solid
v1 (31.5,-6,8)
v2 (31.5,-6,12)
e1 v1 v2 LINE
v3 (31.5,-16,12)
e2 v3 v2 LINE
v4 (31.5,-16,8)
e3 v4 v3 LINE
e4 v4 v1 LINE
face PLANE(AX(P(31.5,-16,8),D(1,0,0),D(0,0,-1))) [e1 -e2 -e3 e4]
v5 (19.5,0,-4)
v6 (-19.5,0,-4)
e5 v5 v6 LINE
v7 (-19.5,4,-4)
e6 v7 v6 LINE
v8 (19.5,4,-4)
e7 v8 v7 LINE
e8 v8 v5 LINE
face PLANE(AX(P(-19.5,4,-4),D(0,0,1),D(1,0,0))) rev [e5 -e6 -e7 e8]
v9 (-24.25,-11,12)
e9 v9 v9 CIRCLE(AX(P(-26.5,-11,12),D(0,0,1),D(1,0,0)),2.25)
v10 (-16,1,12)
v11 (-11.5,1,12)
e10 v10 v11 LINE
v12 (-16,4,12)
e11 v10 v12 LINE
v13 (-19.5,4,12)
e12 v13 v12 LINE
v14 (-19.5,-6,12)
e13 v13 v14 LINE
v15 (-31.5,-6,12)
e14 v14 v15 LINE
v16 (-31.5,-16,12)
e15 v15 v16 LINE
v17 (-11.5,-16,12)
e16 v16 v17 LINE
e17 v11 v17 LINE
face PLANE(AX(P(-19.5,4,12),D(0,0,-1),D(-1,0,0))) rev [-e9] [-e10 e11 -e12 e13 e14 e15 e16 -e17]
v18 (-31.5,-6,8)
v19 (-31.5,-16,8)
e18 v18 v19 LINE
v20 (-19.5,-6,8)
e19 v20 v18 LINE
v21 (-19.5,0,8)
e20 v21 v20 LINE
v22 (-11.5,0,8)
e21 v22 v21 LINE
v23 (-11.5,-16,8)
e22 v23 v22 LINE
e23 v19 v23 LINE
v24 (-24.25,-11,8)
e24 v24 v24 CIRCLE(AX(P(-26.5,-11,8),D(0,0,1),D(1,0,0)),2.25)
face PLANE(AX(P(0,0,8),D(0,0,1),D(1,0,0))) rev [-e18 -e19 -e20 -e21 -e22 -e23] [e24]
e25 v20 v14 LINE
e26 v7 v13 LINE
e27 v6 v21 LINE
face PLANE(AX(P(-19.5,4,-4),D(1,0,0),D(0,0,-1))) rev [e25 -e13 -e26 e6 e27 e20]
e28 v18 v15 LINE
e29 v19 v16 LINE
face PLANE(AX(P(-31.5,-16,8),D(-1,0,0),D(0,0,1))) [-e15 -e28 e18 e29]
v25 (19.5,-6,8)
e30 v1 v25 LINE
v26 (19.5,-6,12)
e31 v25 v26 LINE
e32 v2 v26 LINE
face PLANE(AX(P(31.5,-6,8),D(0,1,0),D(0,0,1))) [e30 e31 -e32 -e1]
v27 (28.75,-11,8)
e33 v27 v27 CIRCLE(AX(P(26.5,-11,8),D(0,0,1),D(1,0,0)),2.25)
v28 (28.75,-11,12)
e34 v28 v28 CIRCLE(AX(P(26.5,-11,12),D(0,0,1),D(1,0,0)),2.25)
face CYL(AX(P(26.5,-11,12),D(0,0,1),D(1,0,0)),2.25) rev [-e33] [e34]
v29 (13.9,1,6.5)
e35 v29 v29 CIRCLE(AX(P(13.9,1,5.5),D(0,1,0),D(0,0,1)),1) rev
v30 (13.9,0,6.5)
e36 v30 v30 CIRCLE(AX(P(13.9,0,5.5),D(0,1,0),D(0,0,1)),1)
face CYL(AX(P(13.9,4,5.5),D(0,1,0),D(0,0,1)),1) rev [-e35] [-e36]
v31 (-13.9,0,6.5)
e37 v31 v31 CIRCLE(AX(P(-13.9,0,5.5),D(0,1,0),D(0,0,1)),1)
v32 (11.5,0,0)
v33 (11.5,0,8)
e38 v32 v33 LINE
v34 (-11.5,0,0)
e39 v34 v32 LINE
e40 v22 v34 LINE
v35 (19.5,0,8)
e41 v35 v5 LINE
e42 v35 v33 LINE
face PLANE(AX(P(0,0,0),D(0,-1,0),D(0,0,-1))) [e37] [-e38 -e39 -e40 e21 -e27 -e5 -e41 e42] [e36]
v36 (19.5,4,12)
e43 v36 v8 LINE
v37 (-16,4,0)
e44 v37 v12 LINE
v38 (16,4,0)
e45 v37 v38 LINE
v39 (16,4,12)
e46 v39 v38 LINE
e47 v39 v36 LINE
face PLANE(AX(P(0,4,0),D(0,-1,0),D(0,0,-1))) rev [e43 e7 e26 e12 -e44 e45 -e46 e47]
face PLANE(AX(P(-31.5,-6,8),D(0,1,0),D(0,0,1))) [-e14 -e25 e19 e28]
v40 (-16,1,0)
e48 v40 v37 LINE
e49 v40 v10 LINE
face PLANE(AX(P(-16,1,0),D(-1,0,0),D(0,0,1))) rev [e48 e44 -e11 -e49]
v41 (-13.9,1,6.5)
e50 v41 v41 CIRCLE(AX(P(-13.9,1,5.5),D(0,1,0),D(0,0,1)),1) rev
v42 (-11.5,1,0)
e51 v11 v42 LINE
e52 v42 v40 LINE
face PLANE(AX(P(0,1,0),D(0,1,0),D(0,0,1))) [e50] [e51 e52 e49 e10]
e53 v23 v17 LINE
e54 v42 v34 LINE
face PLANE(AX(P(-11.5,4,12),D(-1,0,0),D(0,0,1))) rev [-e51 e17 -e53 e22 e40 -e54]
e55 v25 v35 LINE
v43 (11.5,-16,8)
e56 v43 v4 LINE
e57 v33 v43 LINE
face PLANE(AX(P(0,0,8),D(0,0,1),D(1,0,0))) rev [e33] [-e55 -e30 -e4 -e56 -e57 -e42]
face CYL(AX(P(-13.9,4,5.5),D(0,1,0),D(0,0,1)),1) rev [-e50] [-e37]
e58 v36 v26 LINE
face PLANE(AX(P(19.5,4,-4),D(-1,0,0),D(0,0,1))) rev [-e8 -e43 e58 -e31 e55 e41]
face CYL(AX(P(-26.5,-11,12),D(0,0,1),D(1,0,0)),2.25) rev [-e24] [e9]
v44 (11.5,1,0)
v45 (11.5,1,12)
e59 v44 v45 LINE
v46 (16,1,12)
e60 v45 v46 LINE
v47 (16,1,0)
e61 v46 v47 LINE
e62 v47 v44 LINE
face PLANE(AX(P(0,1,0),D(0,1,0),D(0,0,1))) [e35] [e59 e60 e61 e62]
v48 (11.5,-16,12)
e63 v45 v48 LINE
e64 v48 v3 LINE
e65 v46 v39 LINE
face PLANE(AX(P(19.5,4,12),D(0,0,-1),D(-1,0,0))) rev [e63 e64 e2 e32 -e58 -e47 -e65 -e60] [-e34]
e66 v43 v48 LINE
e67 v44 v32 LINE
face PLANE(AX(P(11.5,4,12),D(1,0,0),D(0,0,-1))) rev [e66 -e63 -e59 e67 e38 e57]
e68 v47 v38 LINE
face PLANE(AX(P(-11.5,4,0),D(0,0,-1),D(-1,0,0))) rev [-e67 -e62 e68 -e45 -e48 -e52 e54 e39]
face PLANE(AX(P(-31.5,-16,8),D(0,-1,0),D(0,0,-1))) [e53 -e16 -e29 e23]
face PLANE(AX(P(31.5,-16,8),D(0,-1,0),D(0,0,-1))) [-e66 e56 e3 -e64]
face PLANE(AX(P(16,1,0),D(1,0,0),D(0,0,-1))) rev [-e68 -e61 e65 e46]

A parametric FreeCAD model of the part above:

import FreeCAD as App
import Part
import Sketcher

V = App.Vector
Q = App.Units.Quantity

doc = App.newDocument("Part")
params = doc.addObject("Spreadsheet::Sheet", "Params")
for row, (alias, value) in enumerate([
    ("sketch1_width", "8 mm"),
    ("sketch1_width2", "23 mm"),
    ("sketch1_height", "16 mm"),
    ("sketch1_height2", "12 mm"),
    ("pad1_length", "4 mm"),
    ("sketch2_diameter", "2 mm"),
    ("hole_diameter", "2 mm"),
    ("sketch3_width", "12 mm"),
    ("sketch3_width2", "8 mm"),
    ("pad2_length", "4 mm"),
    ("sketch4_diameter", "4.5 mm"),
    ("hole2_diameter", "4.5 mm"),
    ("sketch5_width", "32 mm"),
    ("sketch5_height", "12 mm"),
    ("pocket1_length", "3 mm"),
], start=1):
    params.set(f"A{row}", alias)
    params.set(f"B{row}", "=" + value)
    params.setAlias(f"B{row}", alias)

body = doc.addObject("PartDesign::Body", "Body")

sketch1 = doc.addObject("Sketcher::SketchObject", "Sketch")
body.addObject(sketch1)
sketch1.AttachmentSupport = (doc.XZ_Plane, [""])
sketch1.MapMode = "FlatFace"
sketch1.addGeometry(Part.LineSegment(V(-20, -4, 0), V(-20, 12, 0)), False)
sketch1.addGeometry(Part.LineSegment(V(-20, 12, 0), V(-12, 12, 0)), False)
sketch1.addGeometry(Part.LineSegment(V(-12, 12, 0), V(-12, 0, 0)), False)
sketch1.addGeometry(Part.LineSegment(V(-12, 0, 0), V(12, 0, 0)), False)
sketch1.addGeometry(Part.LineSegment(V(12, 0, 0), V(12, 12, 0)), False)
sketch1.addGeometry(Part.LineSegment(V(12, 12, 0), V(20, 12, 0)), False)
sketch1.addGeometry(Part.LineSegment(V(20, 12, 0), V(20, -4, 0)), False)
sketch1.addGeometry(Part.LineSegment(V(20, -4, 0), V(-20, -4, 0)), False)
sketch1.addConstraint(Sketcher.Constraint("Coincident", 0, 2, 1, 1))
sketch1.addConstraint(Sketcher.Constraint("Coincident", 1, 2, 2, 1))
sketch1.addConstraint(Sketcher.Constraint("Coincident", 2, 2, 3, 1))
sketch1.addConstraint(Sketcher.Constraint("Coincident", 3, 2, 4, 1))
sketch1.addConstraint(Sketcher.Constraint("Coincident", 4, 2, 5, 1))
sketch1.addConstraint(Sketcher.Constraint("Coincident", 5, 2, 6, 1))
sketch1.addConstraint(Sketcher.Constraint("Coincident", 6, 2, 7, 1))
sketch1.addConstraint(Sketcher.Constraint("Coincident", 7, 2, 0, 1))
sketch1.addConstraint(Sketcher.Constraint("Vertical", 0))
sketch1.addConstraint(Sketcher.Constraint("Horizontal", 1))
sketch1.addConstraint(Sketcher.Constraint("Vertical", 2))
sketch1.addConstraint(Sketcher.Constraint("Horizontal", 3))
sketch1.addConstraint(Sketcher.Constraint("Vertical", 4))
sketch1.addConstraint(Sketcher.Constraint("Horizontal", 5))
sketch1.addConstraint(Sketcher.Constraint("Vertical", 6))
sketch1.addConstraint(Sketcher.Constraint("Horizontal", 7))
sketch1.addConstraint(Sketcher.Constraint("Symmetric", 2, 2, 3, 2, -1, 1))
sketch1.addConstraint(Sketcher.Constraint("Symmetric", 0, 2, 5, 2, -2))
sketch1.addConstraint(Sketcher.Constraint("DistanceX", 1, 1, 1, 2, Q("8 mm")))
sketch1.addConstraint(Sketcher.Constraint("DistanceX", 3, 1, 3, 2, Q("23 mm")))
sketch1.addConstraint(Sketcher.Constraint("DistanceY", 0, 1, 0, 2, Q("16 mm")))
sketch1.addConstraint(Sketcher.Constraint("DistanceY", 2, 2, 2, 1, Q("12 mm")))
sketch1.setExpression("Constraints[18]", "Params.sketch1_width")
sketch1.setExpression("Constraints[19]", "Params.sketch1_width2")
sketch1.setExpression("Constraints[20]", "Params.sketch1_height")
sketch1.setExpression("Constraints[21]", "Params.sketch1_height2")
pad1 = doc.addObject("PartDesign::Pad", "Pad")
body.addObject(pad1)
pad1.Profile = sketch1
pad1.setExpression("Length", "Params.pad1_length")
pad1.Reversed = True

sketch2 = doc.addObject("Sketcher::SketchObject", "Sketch001")
body.addObject(sketch2)
sketch2.AttachmentSupport = (doc.XZ_Plane, [""])
sketch2.MapMode = "FlatFace"
sketch2.AttachmentOffset = App.Placement(V(0, 0, -4), App.Rotation())
sketch2.addGeometry(Part.Circle(V(-13.9, 5.5, 0), V(0, 0, 1), 1), False)
sketch2.addGeometry(Part.Circle(V(13.9, 5.5, 0), V(0, 0, 1), 1), False)
sketch2.addConstraint(Sketcher.Constraint("Equal", 0, 1))
sketch2.addConstraint(Sketcher.Constraint("Symmetric", 0, 3, 1, 3, -2))
sketch2.addConstraint(Sketcher.Constraint("Diameter", 0, Q("2 mm")))
sketch2.addConstraint(Sketcher.Constraint("DistanceX", 0, 3, -1, 1, Q("13.9 mm")))
sketch2.addConstraint(Sketcher.Constraint("DistanceY", -1, 1, 0, 3, Q("5.5 mm")))
sketch2.setExpression("Constraints[2]", "Params.sketch2_diameter")
doc.recompute()
hole = doc.addObject("PartDesign::Hole", "Hole")
body.addObject(hole)
hole.Profile = sketch2
hole.ThreadType = "None"
hole.setExpression("Diameter", "Params.hole_diameter")
hole.DepthType = "ThroughAll"
hole.Reversed = True

sketch3 = doc.addObject("Sketcher::SketchObject", "Sketch002")
body.addObject(sketch3)
sketch3.AttachmentSupport = (doc.XY_Plane, [""])
sketch3.MapMode = "FlatFace"
sketch3.AttachmentOffset = App.Placement(V(0, 0, 12), App.Rotation())
sketch3.addGeometry(Part.LineSegment(V(32, -16, 0), V(32, -6, 0)), False)
sketch3.addGeometry(Part.LineSegment(V(32, -6, 0), V(20, -6, 0)), False)
sketch3.addGeometry(Part.LineSegment(V(20, -6, 0), V(20, 4, 0)), False)
sketch3.addGeometry(Part.LineSegment(V(20, 4, 0), V(12, 4, 0)), False)
sketch3.addGeometry(Part.LineSegment(V(12, 4, 0), V(12, -16, 0)), False)
sketch3.addGeometry(Part.LineSegment(V(12, -16, 0), V(32, -16, 0)), False)
sketch3.addGeometry(Part.LineSegment(V(-12, 4, 0), V(-20, 4, 0)), False)
sketch3.addGeometry(Part.LineSegment(V(-20, 4, 0), V(-20, -6, 0)), False)
sketch3.addGeometry(Part.LineSegment(V(-20, -6, 0), V(-32, -6, 0)), False)
sketch3.addGeometry(Part.LineSegment(V(-32, -6, 0), V(-32, -16, 0)), False)
sketch3.addGeometry(Part.LineSegment(V(-32, -16, 0), V(-12, -16, 0)), False)
sketch3.addGeometry(Part.LineSegment(V(-12, -16, 0), V(-12, 4, 0)), False)
sketch3.addConstraint(Sketcher.Constraint("Coincident", 0, 2, 1, 1))
sketch3.addConstraint(Sketcher.Constraint("Coincident", 1, 2, 2, 1))
sketch3.addConstraint(Sketcher.Constraint("Coincident", 2, 2, 3, 1))
sketch3.addConstraint(Sketcher.Constraint("Coincident", 3, 2, 4, 1))
sketch3.addConstraint(Sketcher.Constraint("Coincident", 4, 2, 5, 1))
sketch3.addConstraint(Sketcher.Constraint("Coincident", 5, 2, 0, 1))
sketch3.addConstraint(Sketcher.Constraint("Coincident", 6, 2, 7, 1))
sketch3.addConstraint(Sketcher.Constraint("Coincident", 7, 2, 8, 1))
sketch3.addConstraint(Sketcher.Constraint("Coincident", 8, 2, 9, 1))
sketch3.addConstraint(Sketcher.Constraint("Coincident", 9, 2, 10, 1))
sketch3.addConstraint(Sketcher.Constraint("Coincident", 10, 2, 11, 1))
sketch3.addConstraint(Sketcher.Constraint("Coincident", 11, 2, 6, 1))
sketch3.addConstraint(Sketcher.Constraint("Vertical", 0))
sketch3.addConstraint(Sketcher.Constraint("Horizontal", 1))
sketch3.addConstraint(Sketcher.Constraint("Vertical", 2))
sketch3.addConstraint(Sketcher.Constraint("Horizontal", 3))
sketch3.addConstraint(Sketcher.Constraint("Vertical", 4))
sketch3.addConstraint(Sketcher.Constraint("Horizontal", 5))
sketch3.addConstraint(Sketcher.Constraint("Horizontal", 6))
sketch3.addConstraint(Sketcher.Constraint("Vertical", 7))
sketch3.addConstraint(Sketcher.Constraint("Horizontal", 8))
sketch3.addConstraint(Sketcher.Constraint("Vertical", 9))
sketch3.addConstraint(Sketcher.Constraint("Horizontal", 10))
sketch3.addConstraint(Sketcher.Constraint("Vertical", 11))
sketch3.addConstraint(Sketcher.Constraint("Symmetric", 2, 2, 6, 2, -2))
sketch3.addConstraint(Sketcher.Constraint("Symmetric", 0, 2, 8, 2, -2))
sketch3.addConstraint(Sketcher.Constraint("Symmetric", 4, 2, 10, 2, -2))
sketch3.addConstraint(Sketcher.Constraint("Equal", 0, 2))
sketch3.addConstraint(Sketcher.Constraint("Equal", 10, 4))
sketch3.addConstraint(Sketcher.Constraint("DistanceX", 1, 2, 1, 1, Q("12 mm")))
sketch3.addConstraint(Sketcher.Constraint("DistanceX", 3, 2, 3, 1, Q("8 mm")))
sketch3.addConstraint(Sketcher.Constraint("DistanceY", 0, 2, -1, 1, Q("6 mm")))
sketch3.addConstraint(Sketcher.Constraint("DistanceX", 6, 2, 3, 2, Q("31 mm")))
sketch3.setExpression("Constraints[29]", "Params.sketch3_width")
sketch3.setExpression("Constraints[30]", "Params.sketch3_width2")
pad2 = doc.addObject("PartDesign::Pad", "Pad001")
body.addObject(pad2)
pad2.Profile = sketch3
pad2.setExpression("Length", "Params.pad2_length")
pad2.Reversed = True

sketch4 = doc.addObject("Sketcher::SketchObject", "Sketch003")
body.addObject(sketch4)
sketch4.AttachmentSupport = (doc.XY_Plane, [""])
sketch4.MapMode = "FlatFace"
sketch4.AttachmentOffset = App.Placement(V(0, 0, 12), App.Rotation())
sketch4.addGeometry(Part.Circle(V(-26.5, -11, 0), V(0, 0, 1), 2.2), False)
sketch4.addGeometry(Part.Circle(V(26.5, -11, 0), V(0, 0, 1), 2.2), False)
sketch4.addConstraint(Sketcher.Constraint("Equal", 0, 1))
sketch4.addConstraint(Sketcher.Constraint("Symmetric", 0, 3, 1, 3, -2))
sketch4.addConstraint(Sketcher.Constraint("Diameter", 0, Q("4.5 mm")))
sketch4.addConstraint(Sketcher.Constraint("DistanceY", 0, 3, -1, 1, Q("11 mm")))
sketch4.addConstraint(Sketcher.Constraint("DistanceX", 0, 3, 1, 3, Q("53 mm")))
sketch4.setExpression("Constraints[2]", "Params.sketch4_diameter")
doc.recompute()
hole2 = doc.addObject("PartDesign::Hole", "Hole001")
body.addObject(hole2)
hole2.Profile = sketch4
hole2.ThreadType = "None"
hole2.setExpression("Diameter", "Params.hole2_diameter")
hole2.DepthType = "ThroughAll"

sketch5 = doc.addObject("Sketcher::SketchObject", "Sketch004")
body.addObject(sketch5)
sketch5.AttachmentSupport = (doc.XZ_Plane, [""])
sketch5.MapMode = "FlatFace"
sketch5.AttachmentOffset = App.Placement(V(0, 0, -4), App.Rotation())
sketch5.addGeometry(Part.LineSegment(V(-16, 0, 0), V(-16, 12, 0)), False)
sketch5.addGeometry(Part.LineSegment(V(-16, 12, 0), V(16, 12, 0)), False)
sketch5.addGeometry(Part.LineSegment(V(16, 12, 0), V(16, 0, 0)), False)
sketch5.addGeometry(Part.LineSegment(V(16, 0, 0), V(-16, 0, 0)), False)
sketch5.addConstraint(Sketcher.Constraint("Coincident", 0, 2, 1, 1))
sketch5.addConstraint(Sketcher.Constraint("Coincident", 1, 2, 2, 1))
sketch5.addConstraint(Sketcher.Constraint("Coincident", 2, 2, 3, 1))
sketch5.addConstraint(Sketcher.Constraint("Coincident", 3, 2, 0, 1))
sketch5.addConstraint(Sketcher.Constraint("Vertical", 0))
sketch5.addConstraint(Sketcher.Constraint("Horizontal", 1))
sketch5.addConstraint(Sketcher.Constraint("Vertical", 2))
sketch5.addConstraint(Sketcher.Constraint("Horizontal", 3))
sketch5.addConstraint(Sketcher.Constraint("Symmetric", 2, 2, 3, 2, -1, 1))
sketch5.addConstraint(Sketcher.Constraint("DistanceX", 1, 1, 1, 2, Q("32 mm")))
sketch5.addConstraint(Sketcher.Constraint("DistanceY", 0, 1, 0, 2, Q("12 mm")))
sketch5.setExpression("Constraints[9]", "Params.sketch5_width")
sketch5.setExpression("Constraints[10]", "Params.sketch5_height")
pocket1 = doc.addObject("PartDesign::Pocket", "Pocket")
body.addObject(pocket1)
pocket1.Profile = sketch5
pocket1.setExpression("Length", "Params.pocket1_length")
pocket1.Reversed = True

doc.recompute()
